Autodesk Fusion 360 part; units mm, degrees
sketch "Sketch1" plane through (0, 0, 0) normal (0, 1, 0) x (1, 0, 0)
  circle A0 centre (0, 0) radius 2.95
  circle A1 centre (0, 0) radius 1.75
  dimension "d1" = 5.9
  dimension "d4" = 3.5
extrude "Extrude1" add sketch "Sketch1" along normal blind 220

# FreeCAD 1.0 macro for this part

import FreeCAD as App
import Part
import Sketcher

V = App.Vector
Q = App.Units.Quantity

doc = App.newDocument("Part")
body = doc.addObject("PartDesign::Body", "Body")

# Sketch on XZ plane
sketch1 = body.newObject("Sketcher::SketchObject", "Sketch")
sketch1.AttachmentSupport = (doc.getObject("XZ_Plane"), [""])
sketch1.MapMode = "FlatFace"
sketch1.addGeometry([
    Part.Circle(V(0, 0, 0), V(0, 0, 1), 3),
    Part.Circle(V(0, 0, 0), V(0, 0, 1), 1.8),
], False)
sketch1.addConstraint([
    Sketcher.Constraint("Coincident", 0, 3, -1, 1),
    Sketcher.Constraint("Coincident", 1, 3, -1, 1),
    Sketcher.Constraint("Diameter", 0, Q("5.9 mm")),
    Sketcher.Constraint("Diameter", 1, Q("3.5 mm")),
])
pad1 = body.newObject("PartDesign::Pad", "Pad")
pad1.Profile = sketch1
pad1.Length = 220
pad1.Reversed = True

doc.recompute()
